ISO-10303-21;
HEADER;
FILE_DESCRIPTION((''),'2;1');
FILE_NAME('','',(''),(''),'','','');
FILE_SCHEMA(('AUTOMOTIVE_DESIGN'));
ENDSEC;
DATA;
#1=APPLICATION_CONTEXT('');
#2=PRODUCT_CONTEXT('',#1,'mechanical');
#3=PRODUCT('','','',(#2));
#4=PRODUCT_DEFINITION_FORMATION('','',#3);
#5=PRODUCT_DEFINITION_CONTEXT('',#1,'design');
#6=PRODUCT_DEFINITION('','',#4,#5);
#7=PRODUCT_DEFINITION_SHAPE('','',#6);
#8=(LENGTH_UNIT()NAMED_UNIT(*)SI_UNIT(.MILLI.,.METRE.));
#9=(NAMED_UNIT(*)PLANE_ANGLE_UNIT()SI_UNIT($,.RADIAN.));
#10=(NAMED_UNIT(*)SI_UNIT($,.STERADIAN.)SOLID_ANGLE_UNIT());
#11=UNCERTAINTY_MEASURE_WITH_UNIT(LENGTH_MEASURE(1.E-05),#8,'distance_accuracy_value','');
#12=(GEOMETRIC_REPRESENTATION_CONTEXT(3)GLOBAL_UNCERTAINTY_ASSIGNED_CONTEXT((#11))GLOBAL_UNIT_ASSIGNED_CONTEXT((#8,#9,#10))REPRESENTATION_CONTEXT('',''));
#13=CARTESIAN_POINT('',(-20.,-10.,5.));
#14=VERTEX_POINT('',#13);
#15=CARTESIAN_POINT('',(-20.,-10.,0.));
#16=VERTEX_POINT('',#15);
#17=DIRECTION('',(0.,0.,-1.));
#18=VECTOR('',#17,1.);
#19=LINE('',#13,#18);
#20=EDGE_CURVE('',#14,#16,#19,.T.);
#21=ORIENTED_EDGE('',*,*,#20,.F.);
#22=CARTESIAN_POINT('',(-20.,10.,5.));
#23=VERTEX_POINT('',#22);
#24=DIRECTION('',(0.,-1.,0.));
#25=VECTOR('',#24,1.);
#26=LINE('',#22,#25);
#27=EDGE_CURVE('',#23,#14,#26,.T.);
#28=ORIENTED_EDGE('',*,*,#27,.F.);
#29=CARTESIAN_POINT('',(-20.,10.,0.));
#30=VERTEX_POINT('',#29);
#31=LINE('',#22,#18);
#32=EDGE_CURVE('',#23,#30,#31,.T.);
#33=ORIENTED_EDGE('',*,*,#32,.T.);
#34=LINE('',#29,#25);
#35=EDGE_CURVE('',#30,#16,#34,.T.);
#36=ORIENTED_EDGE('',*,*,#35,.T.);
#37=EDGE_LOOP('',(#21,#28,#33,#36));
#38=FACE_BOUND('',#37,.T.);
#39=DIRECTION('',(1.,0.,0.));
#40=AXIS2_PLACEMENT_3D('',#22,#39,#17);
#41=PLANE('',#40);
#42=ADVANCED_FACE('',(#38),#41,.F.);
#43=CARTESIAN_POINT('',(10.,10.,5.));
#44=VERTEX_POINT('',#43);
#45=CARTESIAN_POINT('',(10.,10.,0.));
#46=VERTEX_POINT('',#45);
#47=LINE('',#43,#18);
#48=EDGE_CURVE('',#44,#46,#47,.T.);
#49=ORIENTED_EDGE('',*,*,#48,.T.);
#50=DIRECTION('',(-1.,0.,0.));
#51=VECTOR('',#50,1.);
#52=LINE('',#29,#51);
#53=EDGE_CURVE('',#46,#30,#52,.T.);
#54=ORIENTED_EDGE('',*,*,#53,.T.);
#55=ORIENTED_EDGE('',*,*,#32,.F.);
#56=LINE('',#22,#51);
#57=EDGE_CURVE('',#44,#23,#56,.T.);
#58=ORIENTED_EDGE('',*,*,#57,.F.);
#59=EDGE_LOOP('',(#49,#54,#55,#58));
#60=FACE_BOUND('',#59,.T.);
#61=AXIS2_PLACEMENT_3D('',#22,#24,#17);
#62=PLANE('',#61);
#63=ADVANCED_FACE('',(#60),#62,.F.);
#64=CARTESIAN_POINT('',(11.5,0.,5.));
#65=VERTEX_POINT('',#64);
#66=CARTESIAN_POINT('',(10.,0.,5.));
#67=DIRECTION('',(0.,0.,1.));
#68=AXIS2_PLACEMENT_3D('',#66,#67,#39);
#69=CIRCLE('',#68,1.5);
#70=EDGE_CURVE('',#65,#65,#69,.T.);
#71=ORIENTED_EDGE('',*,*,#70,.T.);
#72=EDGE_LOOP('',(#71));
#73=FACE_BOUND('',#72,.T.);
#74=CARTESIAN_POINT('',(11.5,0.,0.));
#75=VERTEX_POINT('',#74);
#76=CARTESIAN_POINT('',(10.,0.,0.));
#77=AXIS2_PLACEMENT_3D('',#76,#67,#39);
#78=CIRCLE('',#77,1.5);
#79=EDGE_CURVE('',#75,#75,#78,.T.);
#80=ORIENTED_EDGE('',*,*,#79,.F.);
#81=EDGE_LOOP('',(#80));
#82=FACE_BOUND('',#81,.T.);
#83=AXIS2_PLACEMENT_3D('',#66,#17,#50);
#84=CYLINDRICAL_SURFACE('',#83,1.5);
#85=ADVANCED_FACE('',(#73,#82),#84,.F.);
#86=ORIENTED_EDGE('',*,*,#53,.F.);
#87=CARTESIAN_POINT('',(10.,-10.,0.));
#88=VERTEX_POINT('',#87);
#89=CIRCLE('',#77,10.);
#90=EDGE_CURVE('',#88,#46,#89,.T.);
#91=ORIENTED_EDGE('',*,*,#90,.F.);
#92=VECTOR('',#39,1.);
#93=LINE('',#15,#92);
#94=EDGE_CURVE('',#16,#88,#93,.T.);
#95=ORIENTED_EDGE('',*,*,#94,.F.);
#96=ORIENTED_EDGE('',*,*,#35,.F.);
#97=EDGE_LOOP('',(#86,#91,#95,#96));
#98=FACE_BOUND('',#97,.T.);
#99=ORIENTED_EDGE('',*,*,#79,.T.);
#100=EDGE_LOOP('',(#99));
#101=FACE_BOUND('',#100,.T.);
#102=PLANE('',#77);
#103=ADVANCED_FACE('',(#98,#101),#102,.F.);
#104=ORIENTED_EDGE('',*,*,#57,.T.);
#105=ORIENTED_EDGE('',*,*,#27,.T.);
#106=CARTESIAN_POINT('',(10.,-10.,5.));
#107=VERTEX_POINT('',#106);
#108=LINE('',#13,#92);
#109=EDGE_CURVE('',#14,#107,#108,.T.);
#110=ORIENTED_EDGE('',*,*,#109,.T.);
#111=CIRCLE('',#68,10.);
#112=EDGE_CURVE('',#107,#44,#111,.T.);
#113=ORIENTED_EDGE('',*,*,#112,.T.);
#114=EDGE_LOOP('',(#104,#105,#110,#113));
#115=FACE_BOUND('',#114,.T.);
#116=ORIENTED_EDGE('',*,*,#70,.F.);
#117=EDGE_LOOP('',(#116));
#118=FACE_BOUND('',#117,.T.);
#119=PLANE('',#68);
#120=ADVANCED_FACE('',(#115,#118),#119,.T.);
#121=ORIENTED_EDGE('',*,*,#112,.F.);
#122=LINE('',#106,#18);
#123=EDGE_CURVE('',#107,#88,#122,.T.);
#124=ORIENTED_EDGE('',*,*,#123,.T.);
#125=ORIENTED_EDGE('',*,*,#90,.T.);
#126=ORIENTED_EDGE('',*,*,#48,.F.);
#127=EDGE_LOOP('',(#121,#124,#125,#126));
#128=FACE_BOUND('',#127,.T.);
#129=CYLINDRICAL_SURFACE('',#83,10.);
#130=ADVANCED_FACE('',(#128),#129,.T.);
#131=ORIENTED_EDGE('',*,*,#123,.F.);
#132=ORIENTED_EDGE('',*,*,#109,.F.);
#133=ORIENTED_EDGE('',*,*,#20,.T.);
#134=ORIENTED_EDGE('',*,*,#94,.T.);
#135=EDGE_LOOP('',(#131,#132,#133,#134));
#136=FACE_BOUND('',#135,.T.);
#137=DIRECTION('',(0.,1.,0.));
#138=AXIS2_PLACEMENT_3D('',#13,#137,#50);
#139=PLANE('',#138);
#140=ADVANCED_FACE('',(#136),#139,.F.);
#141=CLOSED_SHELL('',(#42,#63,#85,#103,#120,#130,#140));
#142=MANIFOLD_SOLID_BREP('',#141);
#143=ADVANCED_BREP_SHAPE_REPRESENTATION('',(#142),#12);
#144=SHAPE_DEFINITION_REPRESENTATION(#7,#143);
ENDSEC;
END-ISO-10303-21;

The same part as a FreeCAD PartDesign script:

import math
import FreeCAD as App
import Part
import Sketcher
from FreeCAD import Vector
Q = App.Units.Quantity

doc = App.newDocument("Part")
body = doc.addObject("PartDesign::Body", "Body")

# Sketch on XY plane
sketch1 = doc.addObject("Sketcher::SketchObject", "Sketch")
body.addObject(sketch1)
sketch1.AttachmentSupport = (doc.XY_Plane, [""])
sketch1.MapMode = "FlatFace"
sketch1.addGeometry([
    Part.LineSegment(Vector(10, 10, 0), Vector(-20, 10, 0)),  # 0
    Part.LineSegment(Vector(-20, 10, 0), Vector(-20, -10, 0)),  # 1
    Part.LineSegment(Vector(-20, -10, 0), Vector(10, -10, 0)),  # 2
    Part.ArcOfCircle(Part.Circle(Vector(10, 0, 0), Vector(0, 0, 1), 10), math.radians(-90), math.radians(90)),  # 3
    Part.Circle(Vector(10, 0, 0), Vector(0, 0, 1), 1.5),  # 4
], False)
sketch1.addConstraint([
    Sketcher.Constraint("Coincident", 0, 2, 1, 1),
    Sketcher.Constraint("Coincident", 1, 2, 2, 1),
    Sketcher.Constraint("Tangent", 2, 2, 3, 1),
    Sketcher.Constraint("Tangent", 3, 2, 0, 1),
    Sketcher.Constraint("Horizontal", 0),
    Sketcher.Constraint("Vertical", 1),
    Sketcher.Constraint("Horizontal", 2),
    Sketcher.Constraint("Coincident", 4, 3, 3, 3),
    Sketcher.Constraint("PointOnObject", 3, 3, -1),
    Sketcher.Constraint("Diameter", 4, Q("3 mm")),
    Sketcher.Constraint("Radius", 3, Q("10 mm")),
    Sketcher.Constraint("DistanceX", 0, 2, 0, 1, Q("30 mm")),
    Sketcher.Constraint("DistanceX", -1, 1, 3, 3, Q("10 mm")),
])
pad1 = doc.addObject("PartDesign::Pad", "Pad")
body.addObject(pad1)
pad1.Profile = sketch1
pad1.Length = 5

doc.recompute()
